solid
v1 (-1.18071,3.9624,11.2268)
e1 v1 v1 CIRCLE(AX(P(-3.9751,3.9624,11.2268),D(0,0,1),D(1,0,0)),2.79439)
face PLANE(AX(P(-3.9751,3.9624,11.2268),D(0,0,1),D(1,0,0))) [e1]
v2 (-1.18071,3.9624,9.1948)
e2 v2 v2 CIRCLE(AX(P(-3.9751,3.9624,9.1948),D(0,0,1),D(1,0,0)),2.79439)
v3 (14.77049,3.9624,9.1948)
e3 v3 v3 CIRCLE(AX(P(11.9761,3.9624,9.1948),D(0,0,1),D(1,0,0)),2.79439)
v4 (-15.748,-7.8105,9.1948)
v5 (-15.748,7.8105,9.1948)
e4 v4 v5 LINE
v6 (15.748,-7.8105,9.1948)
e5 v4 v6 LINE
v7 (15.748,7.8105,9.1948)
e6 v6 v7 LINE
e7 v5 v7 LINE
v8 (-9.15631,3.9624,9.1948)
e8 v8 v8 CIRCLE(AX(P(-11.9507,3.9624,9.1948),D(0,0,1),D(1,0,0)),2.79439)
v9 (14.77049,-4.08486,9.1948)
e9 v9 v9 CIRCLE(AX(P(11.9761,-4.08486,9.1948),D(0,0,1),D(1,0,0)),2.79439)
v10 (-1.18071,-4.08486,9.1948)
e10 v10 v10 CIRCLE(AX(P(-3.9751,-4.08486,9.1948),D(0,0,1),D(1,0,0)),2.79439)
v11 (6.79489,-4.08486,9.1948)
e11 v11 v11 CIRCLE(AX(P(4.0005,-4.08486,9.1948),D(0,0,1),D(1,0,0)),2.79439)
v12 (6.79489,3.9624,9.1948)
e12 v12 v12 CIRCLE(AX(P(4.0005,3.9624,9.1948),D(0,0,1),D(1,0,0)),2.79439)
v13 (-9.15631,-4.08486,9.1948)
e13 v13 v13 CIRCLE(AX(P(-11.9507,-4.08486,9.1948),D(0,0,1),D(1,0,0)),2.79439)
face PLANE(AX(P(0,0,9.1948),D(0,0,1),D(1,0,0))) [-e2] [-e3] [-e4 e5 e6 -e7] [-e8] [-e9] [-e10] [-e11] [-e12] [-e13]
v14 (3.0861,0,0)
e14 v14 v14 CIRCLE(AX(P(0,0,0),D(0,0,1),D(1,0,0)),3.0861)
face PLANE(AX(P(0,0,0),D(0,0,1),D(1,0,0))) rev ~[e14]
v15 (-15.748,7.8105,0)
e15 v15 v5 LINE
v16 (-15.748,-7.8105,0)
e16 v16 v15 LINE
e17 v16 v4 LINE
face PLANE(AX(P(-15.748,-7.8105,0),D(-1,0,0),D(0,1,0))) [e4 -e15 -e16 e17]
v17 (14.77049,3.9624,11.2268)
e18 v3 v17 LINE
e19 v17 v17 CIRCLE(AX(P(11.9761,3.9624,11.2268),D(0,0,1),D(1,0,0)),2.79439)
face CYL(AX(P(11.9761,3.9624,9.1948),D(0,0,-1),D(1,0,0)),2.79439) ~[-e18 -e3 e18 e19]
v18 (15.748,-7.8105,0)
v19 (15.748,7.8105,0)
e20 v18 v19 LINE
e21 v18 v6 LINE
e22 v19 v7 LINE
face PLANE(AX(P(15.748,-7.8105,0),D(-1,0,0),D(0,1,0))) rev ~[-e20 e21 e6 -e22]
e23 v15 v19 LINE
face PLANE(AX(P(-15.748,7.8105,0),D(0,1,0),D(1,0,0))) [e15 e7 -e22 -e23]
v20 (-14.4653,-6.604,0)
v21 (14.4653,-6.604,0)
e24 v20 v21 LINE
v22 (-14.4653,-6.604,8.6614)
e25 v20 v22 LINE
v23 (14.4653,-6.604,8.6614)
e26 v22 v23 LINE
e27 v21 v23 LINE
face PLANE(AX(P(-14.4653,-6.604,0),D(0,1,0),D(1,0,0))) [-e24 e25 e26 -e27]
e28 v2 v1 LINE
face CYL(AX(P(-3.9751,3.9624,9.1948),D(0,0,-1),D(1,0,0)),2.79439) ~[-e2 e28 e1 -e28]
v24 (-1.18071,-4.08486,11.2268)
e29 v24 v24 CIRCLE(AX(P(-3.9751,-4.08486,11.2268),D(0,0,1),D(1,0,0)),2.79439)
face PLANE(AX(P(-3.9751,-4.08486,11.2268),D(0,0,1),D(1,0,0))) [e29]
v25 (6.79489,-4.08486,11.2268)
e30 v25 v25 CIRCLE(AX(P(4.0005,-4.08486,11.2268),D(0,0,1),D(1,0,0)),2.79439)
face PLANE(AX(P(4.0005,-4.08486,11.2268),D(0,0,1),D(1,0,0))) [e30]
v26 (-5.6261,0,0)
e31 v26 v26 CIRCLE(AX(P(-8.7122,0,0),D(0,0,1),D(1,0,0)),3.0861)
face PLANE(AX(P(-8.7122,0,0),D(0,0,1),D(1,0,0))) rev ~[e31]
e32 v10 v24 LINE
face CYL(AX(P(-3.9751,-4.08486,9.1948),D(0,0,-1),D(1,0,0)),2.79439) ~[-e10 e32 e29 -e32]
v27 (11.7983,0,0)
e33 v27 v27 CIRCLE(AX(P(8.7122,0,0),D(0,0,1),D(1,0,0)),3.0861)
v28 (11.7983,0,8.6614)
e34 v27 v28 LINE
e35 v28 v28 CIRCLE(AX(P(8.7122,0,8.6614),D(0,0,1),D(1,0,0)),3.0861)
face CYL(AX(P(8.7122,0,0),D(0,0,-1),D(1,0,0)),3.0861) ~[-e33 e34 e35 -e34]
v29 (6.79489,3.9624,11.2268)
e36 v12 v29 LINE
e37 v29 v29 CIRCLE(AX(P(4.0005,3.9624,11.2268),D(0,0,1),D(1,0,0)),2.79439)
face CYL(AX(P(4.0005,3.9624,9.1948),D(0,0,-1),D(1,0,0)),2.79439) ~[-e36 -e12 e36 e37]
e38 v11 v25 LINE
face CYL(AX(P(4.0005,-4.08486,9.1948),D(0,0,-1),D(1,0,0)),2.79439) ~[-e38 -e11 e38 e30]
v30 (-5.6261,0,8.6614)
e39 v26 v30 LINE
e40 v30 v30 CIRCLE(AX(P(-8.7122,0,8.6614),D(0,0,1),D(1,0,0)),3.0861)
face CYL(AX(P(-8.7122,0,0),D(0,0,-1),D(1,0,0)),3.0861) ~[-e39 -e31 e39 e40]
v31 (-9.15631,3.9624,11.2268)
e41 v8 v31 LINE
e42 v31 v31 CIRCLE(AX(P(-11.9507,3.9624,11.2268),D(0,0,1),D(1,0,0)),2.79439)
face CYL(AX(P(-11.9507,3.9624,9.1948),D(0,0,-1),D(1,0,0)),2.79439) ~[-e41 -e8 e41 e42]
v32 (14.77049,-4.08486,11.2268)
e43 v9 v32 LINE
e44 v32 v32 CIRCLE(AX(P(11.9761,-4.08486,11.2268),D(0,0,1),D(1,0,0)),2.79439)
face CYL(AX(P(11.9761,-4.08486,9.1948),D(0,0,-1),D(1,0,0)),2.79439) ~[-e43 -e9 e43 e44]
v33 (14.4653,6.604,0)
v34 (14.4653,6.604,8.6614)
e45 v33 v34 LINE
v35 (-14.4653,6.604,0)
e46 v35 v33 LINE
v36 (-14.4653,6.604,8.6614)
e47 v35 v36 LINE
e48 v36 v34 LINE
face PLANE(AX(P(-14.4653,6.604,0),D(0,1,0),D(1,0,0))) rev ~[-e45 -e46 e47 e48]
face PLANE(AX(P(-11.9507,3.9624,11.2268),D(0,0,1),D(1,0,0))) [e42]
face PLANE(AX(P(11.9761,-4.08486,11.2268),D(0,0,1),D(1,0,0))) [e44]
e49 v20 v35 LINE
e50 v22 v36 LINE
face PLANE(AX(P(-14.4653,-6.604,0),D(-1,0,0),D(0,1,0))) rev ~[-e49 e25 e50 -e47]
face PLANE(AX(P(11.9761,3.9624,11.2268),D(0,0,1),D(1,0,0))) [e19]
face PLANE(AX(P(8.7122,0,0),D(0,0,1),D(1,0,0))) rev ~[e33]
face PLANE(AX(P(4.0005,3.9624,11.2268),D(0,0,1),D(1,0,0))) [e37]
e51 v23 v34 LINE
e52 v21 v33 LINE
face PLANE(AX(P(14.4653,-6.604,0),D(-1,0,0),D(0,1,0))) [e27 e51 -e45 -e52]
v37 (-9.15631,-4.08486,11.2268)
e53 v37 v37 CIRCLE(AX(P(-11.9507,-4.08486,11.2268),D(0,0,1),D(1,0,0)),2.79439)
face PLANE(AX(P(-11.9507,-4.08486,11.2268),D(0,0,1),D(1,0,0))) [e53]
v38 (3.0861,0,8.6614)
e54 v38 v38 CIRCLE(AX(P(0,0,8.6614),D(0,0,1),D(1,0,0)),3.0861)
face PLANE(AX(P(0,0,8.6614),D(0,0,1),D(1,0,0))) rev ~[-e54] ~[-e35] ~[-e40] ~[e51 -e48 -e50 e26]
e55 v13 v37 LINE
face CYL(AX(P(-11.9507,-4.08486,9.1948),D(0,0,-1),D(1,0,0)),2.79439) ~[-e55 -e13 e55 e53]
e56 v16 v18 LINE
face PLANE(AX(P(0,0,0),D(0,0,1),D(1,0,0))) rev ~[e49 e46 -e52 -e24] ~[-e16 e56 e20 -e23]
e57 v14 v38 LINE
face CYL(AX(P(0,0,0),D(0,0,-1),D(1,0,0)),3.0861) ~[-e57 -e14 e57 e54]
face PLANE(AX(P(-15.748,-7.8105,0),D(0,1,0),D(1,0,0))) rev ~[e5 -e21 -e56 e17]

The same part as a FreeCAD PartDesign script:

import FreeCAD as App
import Part
import Sketcher

V = App.Vector
Q = App.Units.Quantity

doc = App.newDocument("Part")
body = doc.addObject("PartDesign::Body", "Body")

sketch1 = doc.addObject("Sketcher::SketchObject", "Sketch")
body.addObject(sketch1)
sketch1.AttachmentSupport = (doc.XY_Plane, [""])
sketch1.MapMode = "FlatFace"
sketch1.addGeometry([
    Part.LineSegment(V(-16, 8, 0), V(-16, -8, 0)),
    Part.LineSegment(V(-16, -8, 0), V(16, -8, 0)),
    Part.LineSegment(V(16, -8, 0), V(16, 8, 0)),
    Part.LineSegment(V(16, 8, 0), V(-16, 8, 0)),
], False)
sketch1.addConstraint([
    Sketcher.Constraint("Coincident", 0, 2, 1, 1),
    Sketcher.Constraint("Coincident", 1, 2, 2, 1),
    Sketcher.Constraint("Coincident", 2, 2, 3, 1),
    Sketcher.Constraint("Coincident", 3, 2, 0, 1),
    Sketcher.Constraint("Vertical", 0),
    Sketcher.Constraint("Horizontal", 1),
    Sketcher.Constraint("Vertical", 2),
    Sketcher.Constraint("Horizontal", 3),
    Sketcher.Constraint("Symmetric", 0, 2, 2, 2, -1, 1),
    Sketcher.Constraint("DistanceX", 1, 1, 1, 2, Q("1.24 in")),
    Sketcher.Constraint("DistanceY", 0, 2, 0, 1, Q("0.615 in")),
])
pad1 = doc.addObject("PartDesign::Pad", "Pad")
body.addObject(pad1)
pad1.Profile = sketch1
pad1.Length = Q("0.362 in")

sketch2 = doc.addObject("Sketcher::SketchObject", "Sketch001")
body.addObject(sketch2)
sketch2.AttachmentSupport = (doc.XY_Plane, [""])
sketch2.MapMode = "FlatFace"
sketch2.AttachmentOffset = App.Placement(V(0, 0, 0.362 * 25.4), App.Rotation())
sketch2.addGeometry([
    Part.Circle(V(-12, 4, 0), V(0, 0, 1), 2.8),
    Part.Circle(V(-4, 4, 0), V(0, 0, 1), 2.8),
    Part.Circle(V(4, 4, 0), V(0, 0, 1), 2.8),
    Part.Circle(V(12, 4, 0), V(0, 0, 1), 2.8),
    Part.Circle(V(-12, -4.1, 0), V(0, 0, 1), 2.8),
    Part.Circle(V(-4, -4.1, 0), V(0, 0, 1), 2.8),
    Part.Circle(V(4, -4.1, 0), V(0, 0, 1), 2.8),
    Part.Circle(V(12, -4.1, 0), V(0, 0, 1), 2.8),
], False)
sketch2.addConstraint([
    Sketcher.Constraint("Equal", 0, 1),
    Sketcher.Constraint("Equal", 1, 2),
    Sketcher.Constraint("Equal", 2, 3),
    Sketcher.Constraint("Equal", 3, 4),
    Sketcher.Constraint("Equal", 4, 5),
    Sketcher.Constraint("Equal", 5, 6),
    Sketcher.Constraint("Equal", 6, 7),
    Sketcher.Constraint("Horizontal", 0, 3, 1, 3),
    Sketcher.Constraint("Horizontal", 1, 3, 2, 3),
    Sketcher.Constraint("Horizontal", 2, 3, 3, 3),
    Sketcher.Constraint("Horizontal", 4, 3, 5, 3),
    Sketcher.Constraint("Horizontal", 5, 3, 6, 3),
    Sketcher.Constraint("Horizontal", 6, 3, 7, 3),
    Sketcher.Constraint("Vertical", 0, 3, 4, 3),
    Sketcher.Constraint("Vertical", 1, 3, 5, 3),
    Sketcher.Constraint("Vertical", 2, 3, 6, 3),
    Sketcher.Constraint("Vertical", 3, 3, 7, 3),
    Sketcher.Constraint("Diameter", 0, 5.58878),
    Sketcher.Constraint("DistanceY", -1, 1, 0, 3, Q("0.156 in")),
    Sketcher.Constraint("DistanceX", 0, 3, 1, 3, Q("0.314 in")),
    Sketcher.Constraint("DistanceX", 1, 3, 2, 3, Q("0.314 in")),
    Sketcher.Constraint("DistanceX", 2, 3, 3, 3, Q("0.314 in")),
    Sketcher.Constraint("DistanceX", 0, 3, -1, 1, Q("0.4705 in")),
    Sketcher.Constraint("DistanceY", 4, 3, -1, 1, 4.08486),
])
pad2 = doc.addObject("PartDesign::Pad", "Pad001")
body.addObject(pad2)
pad2.Profile = sketch2
pad2.Length = Q("0.08 in")

sketch3 = doc.addObject("Sketcher::SketchObject", "Sketch002")
body.addObject(sketch3)
sketch3.AttachmentSupport = (doc.XY_Plane, [""])
sketch3.MapMode = "FlatFace"
sketch3.addGeometry([
    Part.LineSegment(V(-14, 7, 0), V(-14, -7, 0)),
    Part.LineSegment(V(-14, -7, 0), V(14, -7, 0)),
    Part.LineSegment(V(14, -7, 0), V(14, 7, 0)),
    Part.LineSegment(V(14, 7, 0), V(-14, 7, 0)),
], False)
sketch3.addConstraint([
    Sketcher.Constraint("Coincident", 0, 2, 1, 1),
    Sketcher.Constraint("Coincident", 1, 2, 2, 1),
    Sketcher.Constraint("Coincident", 2, 2, 3, 1),
    Sketcher.Constraint("Coincident", 3, 2, 0, 1),
    Sketcher.Constraint("Vertical", 0),
    Sketcher.Constraint("Horizontal", 1),
    Sketcher.Constraint("Vertical", 2),
    Sketcher.Constraint("Horizontal", 3),
    Sketcher.Constraint("Symmetric", 0, 2, 2, 2, -1, 1),
    Sketcher.Constraint("DistanceY", 0, 2, 0, 1, Q("0.52 in")),
    Sketcher.Constraint("DistanceX", 1, 1, 1, 2, Q("1.139 in")),
])
pocket1 = doc.addObject("PartDesign::Pocket", "Pocket")
body.addObject(pocket1)
pocket1.Profile = sketch3
pocket1.Length = Q("0.341 in")
pocket1.Reversed = True

sketch4 = doc.addObject("Sketcher::SketchObject", "Sketch003")
body.addObject(sketch4)
sketch4.AttachmentSupport = (doc.XY_Plane, [""])
sketch4.MapMode = "FlatFace"
sketch4.addGeometry([
    Part.Circle(V(0, 0, 0), V(0, 0, 1), 3.1),
    Part.Circle(V(8.7, 0, 0), V(0, 0, 1), 3.1),
    Part.Circle(V(-8.7, 0, 0), V(0, 0, 1), 3.1),
], False)
sketch4.addConstraint([
    Sketcher.Constraint("Coincident", 0, 3, -1, 1),
    Sketcher.Constraint("Equal", 0, 1),
    Sketcher.Constraint("Equal", 1, 2),
    Sketcher.Constraint("Symmetric", 1, 3, 2, 3, -1, 1),
    Sketcher.Constraint("PointOnObject", 1, 3, -1),
    Sketcher.Constraint("Diameter", 0, Q("0.243 in")),
    Sketcher.Constraint("DistanceX", -1, 1, 1, 3, Q("0.343 in")),
])
pad3 = doc.addObject("PartDesign::Pad", "Pad002")
body.addObject(pad3)
pad3.Profile = sketch4
pad3.Length = Q("0.341 in")

doc.recompute()
